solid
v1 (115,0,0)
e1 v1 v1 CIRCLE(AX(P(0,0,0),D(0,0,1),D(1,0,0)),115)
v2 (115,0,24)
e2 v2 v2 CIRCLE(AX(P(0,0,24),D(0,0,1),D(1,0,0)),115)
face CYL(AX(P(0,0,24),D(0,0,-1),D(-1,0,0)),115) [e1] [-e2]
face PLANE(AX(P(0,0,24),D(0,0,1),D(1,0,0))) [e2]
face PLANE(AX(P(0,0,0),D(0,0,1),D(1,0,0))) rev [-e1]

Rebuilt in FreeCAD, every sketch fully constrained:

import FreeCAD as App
import Part
import Sketcher
from FreeCAD import Vector
Q = App.Units.Quantity

doc = App.newDocument("Part")
params = doc.addObject("Spreadsheet::Sheet", "Params")
for row, (alias, value) in enumerate([
    ("sketch1_diameter", "230 mm"),
    ("pad1_length", "24 mm"),
], start=1):
    params.set(f"A{row}", alias)
    params.set(f"B{row}", "=" + value)
    params.setAlias(f"B{row}", alias)

body = doc.addObject("PartDesign::Body", "Body")

sketch1 = body.newObject("Sketcher::SketchObject", "Sketch")
sketch1.AttachmentSupport = (doc.getObject("XY_Plane"), [""])
sketch1.MapMode = "FlatFace"
sketch1.addGeometry(Part.Circle(Vector(0, 0, 0), Vector(0, 0, 1), 115), False)
sketch1.addConstraint(Sketcher.Constraint("Coincident", 0, 3, -1, 1))
sketch1.addConstraint(Sketcher.Constraint("Diameter", 0, Q("230 mm")))
sketch1.setExpression("Constraints[1]", "Params.sketch1_diameter")
pad1 = body.newObject("PartDesign::Pad", "Pad")
pad1.Profile = sketch1
pad1.setExpression("Length", "Params.pad1_length")

doc.recompute()
